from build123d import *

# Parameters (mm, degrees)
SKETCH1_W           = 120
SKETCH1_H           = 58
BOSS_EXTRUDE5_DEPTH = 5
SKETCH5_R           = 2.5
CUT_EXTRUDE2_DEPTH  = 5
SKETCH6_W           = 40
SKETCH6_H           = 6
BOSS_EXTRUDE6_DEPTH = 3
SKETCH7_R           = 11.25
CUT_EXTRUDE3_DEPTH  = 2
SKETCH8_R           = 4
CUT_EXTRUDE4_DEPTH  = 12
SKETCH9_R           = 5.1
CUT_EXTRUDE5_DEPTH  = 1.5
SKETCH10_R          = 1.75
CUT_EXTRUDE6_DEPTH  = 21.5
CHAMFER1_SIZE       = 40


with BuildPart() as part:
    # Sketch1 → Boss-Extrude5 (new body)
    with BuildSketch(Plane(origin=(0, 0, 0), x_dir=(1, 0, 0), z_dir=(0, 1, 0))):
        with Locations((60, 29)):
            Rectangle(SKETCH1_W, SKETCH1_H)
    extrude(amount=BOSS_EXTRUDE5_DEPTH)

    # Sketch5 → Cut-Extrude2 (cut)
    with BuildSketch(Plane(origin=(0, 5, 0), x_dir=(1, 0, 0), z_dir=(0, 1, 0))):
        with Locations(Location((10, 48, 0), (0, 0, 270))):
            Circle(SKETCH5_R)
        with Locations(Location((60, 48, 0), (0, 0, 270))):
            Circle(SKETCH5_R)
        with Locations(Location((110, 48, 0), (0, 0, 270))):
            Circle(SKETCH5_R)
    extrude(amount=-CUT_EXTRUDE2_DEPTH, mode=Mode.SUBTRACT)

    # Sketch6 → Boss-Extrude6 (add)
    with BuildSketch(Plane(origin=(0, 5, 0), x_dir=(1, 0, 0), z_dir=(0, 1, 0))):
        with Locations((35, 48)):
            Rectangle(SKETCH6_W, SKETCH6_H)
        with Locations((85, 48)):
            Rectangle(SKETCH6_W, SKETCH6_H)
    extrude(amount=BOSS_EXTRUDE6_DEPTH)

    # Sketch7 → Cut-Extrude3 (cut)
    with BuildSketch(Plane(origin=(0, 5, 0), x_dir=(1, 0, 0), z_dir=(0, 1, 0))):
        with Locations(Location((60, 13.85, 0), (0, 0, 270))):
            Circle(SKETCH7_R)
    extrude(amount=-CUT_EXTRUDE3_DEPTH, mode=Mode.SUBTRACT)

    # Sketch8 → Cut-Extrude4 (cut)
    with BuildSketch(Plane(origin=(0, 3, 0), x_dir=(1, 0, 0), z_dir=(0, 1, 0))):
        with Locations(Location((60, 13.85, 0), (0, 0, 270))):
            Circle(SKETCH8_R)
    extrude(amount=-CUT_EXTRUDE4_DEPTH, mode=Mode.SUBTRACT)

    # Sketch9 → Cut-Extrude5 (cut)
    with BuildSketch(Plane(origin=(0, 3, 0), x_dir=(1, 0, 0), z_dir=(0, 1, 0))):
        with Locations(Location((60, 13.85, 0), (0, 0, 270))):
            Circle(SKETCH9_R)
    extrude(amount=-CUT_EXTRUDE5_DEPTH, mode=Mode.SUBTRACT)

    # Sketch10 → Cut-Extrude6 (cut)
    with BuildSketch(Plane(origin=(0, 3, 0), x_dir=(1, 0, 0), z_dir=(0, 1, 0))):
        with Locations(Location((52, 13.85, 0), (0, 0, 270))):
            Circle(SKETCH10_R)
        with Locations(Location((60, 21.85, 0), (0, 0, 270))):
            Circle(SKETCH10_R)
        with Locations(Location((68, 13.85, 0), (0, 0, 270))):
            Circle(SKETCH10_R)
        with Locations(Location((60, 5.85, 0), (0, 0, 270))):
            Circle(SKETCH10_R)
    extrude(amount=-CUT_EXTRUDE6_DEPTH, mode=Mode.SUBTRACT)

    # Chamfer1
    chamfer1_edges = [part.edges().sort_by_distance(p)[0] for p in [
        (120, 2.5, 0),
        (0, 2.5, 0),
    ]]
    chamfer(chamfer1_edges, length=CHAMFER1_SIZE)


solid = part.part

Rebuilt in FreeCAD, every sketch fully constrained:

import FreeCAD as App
import Part
import Sketcher
Q = App.Units.Quantity


def edges_at(feature, points):
    """Names of the edges that pass closest to the given points."""
    edges = feature.Shape.Edges
    near = lambda p: min(range(len(edges)), key=lambda i: edges[i].distToShape(Part.Vertex(*p))[0])
    return sorted({f"Edge{near(p) + 1}" for p in points})

doc = App.newDocument("Part")
body = doc.addObject("PartDesign::Body", "Body")

# Sketch on XZ plane
sketch1 = body.newObject("Sketcher::SketchObject", "Sketch")
sketch1.AttachmentSupport = (doc.getObject("XZ_Plane"), [""])
sketch1.MapMode = "FlatFace"
sketch1.addGeometry(Part.LineSegment(App.Vector(0, -58, 0), App.Vector(0, 0, 0)), False)
sketch1.addGeometry(Part.LineSegment(App.Vector(0, 0, 0), App.Vector(120, 0, 0)), False)
sketch1.addGeometry(Part.LineSegment(App.Vector(120, 0, 0), App.Vector(120, -58, 0)), False)
sketch1.addGeometry(Part.LineSegment(App.Vector(120, -58, 0), App.Vector(0, -58, 0)), False)
sketch1.addConstraint(Sketcher.Constraint("Coincident", 0, 2, 1, 1))
sketch1.addConstraint(Sketcher.Constraint("Coincident", 1, 2, 2, 1))
sketch1.addConstraint(Sketcher.Constraint("Coincident", 2, 2, 3, 1))
sketch1.addConstraint(Sketcher.Constraint("Coincident", 3, 2, 0, 1))
sketch1.addConstraint(Sketcher.Constraint("Vertical", 0))
sketch1.addConstraint(Sketcher.Constraint("Horizontal", 1))
sketch1.addConstraint(Sketcher.Constraint("Vertical", 2))
sketch1.addConstraint(Sketcher.Constraint("Horizontal", 3))
sketch1.addConstraint(Sketcher.Constraint("Coincident", 0, 2, -1, 1))
sketch1.addConstraint(Sketcher.Constraint("DistanceX", 1, 1, 1, 2, Q("120 mm")))
sketch1.addConstraint(Sketcher.Constraint("DistanceY", 0, 1, 0, 2, Q("58 mm")))
pad1 = body.newObject("PartDesign::Pad", "Pad")
pad1.Profile = sketch1
pad1.Length = 5
pad1.Reversed = True

# Sketch on XZ plane
sketch2 = body.newObject("Sketcher::SketchObject", "Sketch001")
sketch2.AttachmentSupport = (doc.getObject("XZ_Plane"), [""])
sketch2.MapMode = "FlatFace"
sketch2.AttachmentOffset = App.Placement(App.Vector(0, 0, -5), App.Rotation())
sketch2.addGeometry(Part.Circle(App.Vector(10, -48, 0), App.Vector(0, 0, 1), 2.5), False)
sketch2.addGeometry(Part.Circle(App.Vector(60, -48, 0), App.Vector(0, 0, 1), 2.5), False)
sketch2.addGeometry(Part.Circle(App.Vector(110, -48, 0), App.Vector(0, 0, 1), 2.5), False)
sketch2.addConstraint(Sketcher.Constraint("Equal", 0, 1))
sketch2.addConstraint(Sketcher.Constraint("Equal", 1, 2))
sketch2.addConstraint(Sketcher.Constraint("Horizontal", 0, 3, 1, 3))
sketch2.addConstraint(Sketcher.Constraint("Horizontal", 1, 3, 2, 3))
sketch2.addConstraint(Sketcher.Constraint("Diameter", 0, Q("5 mm")))
sketch2.addConstraint(Sketcher.Constraint("DistanceX", -1, 1, 0, 3, Q("10 mm")))
sketch2.addConstraint(Sketcher.Constraint("DistanceY", 0, 3, -1, 1, Q("48 mm")))
sketch2.addConstraint(Sketcher.Constraint("DistanceX", -1, 1, 1, 3, Q("60 mm")))
sketch2.addConstraint(Sketcher.Constraint("DistanceX", -1, 1, 2, 3, Q("110 mm")))
pocket1 = body.newObject("PartDesign::Pocket", "Pocket")
pocket1.Profile = sketch2
pocket1.Length = 5
pocket1.Reversed = True

# Sketch on XZ plane
sketch3 = body.newObject("Sketcher::SketchObject", "Sketch002")
sketch3.AttachmentSupport = (doc.getObject("XZ_Plane"), [""])
sketch3.MapMode = "FlatFace"
sketch3.AttachmentOffset = App.Placement(App.Vector(0, 0, -5), App.Rotation())
sketch3.addGeometry(Part.LineSegment(App.Vector(15, -51, 0), App.Vector(15, -45, 0)), False)
sketch3.addGeometry(Part.LineSegment(App.Vector(15, -45, 0), App.Vector(55, -45, 0)), False)
sketch3.addGeometry(Part.LineSegment(App.Vector(55, -45, 0), App.Vector(55, -51, 0)), False)
sketch3.addGeometry(Part.LineSegment(App.Vector(55, -51, 0), App.Vector(15, -51, 0)), False)
sketch3.addGeometry(Part.LineSegment(App.Vector(65, -51, 0), App.Vector(65, -45, 0)), False)
sketch3.addGeometry(Part.LineSegment(App.Vector(65, -45, 0), App.Vector(105, -45, 0)), False)
sketch3.addGeometry(Part.LineSegment(App.Vector(105, -45, 0), App.Vector(105, -51, 0)), False)
sketch3.addGeometry(Part.LineSegment(App.Vector(105, -51, 0), App.Vector(65, -51, 0)), False)
sketch3.addConstraint(Sketcher.Constraint("Coincident", 0, 2, 1, 1))
sketch3.addConstraint(Sketcher.Constraint("Coincident", 1, 2, 2, 1))
sketch3.addConstraint(Sketcher.Constraint("Coincident", 2, 2, 3, 1))
sketch3.addConstraint(Sketcher.Constraint("Coincident", 3, 2, 0, 1))
sketch3.addConstraint(Sketcher.Constraint("Coincident", 4, 2, 5, 1))
sketch3.addConstraint(Sketcher.Constraint("Coincident", 5, 2, 6, 1))
sketch3.addConstraint(Sketcher.Constraint("Coincident", 6, 2, 7, 1))
sketch3.addConstraint(Sketcher.Constraint("Coincident", 7, 2, 4, 1))
sketch3.addConstraint(Sketcher.Constraint("Vertical", 0))
sketch3.addConstraint(Sketcher.Constraint("Horizontal", 1))
sketch3.addConstraint(Sketcher.Constraint("Vertical", 2))
sketch3.addConstraint(Sketcher.Constraint("Horizontal", 3))
sketch3.addConstraint(Sketcher.Constraint("Vertical", 4))
sketch3.addConstraint(Sketcher.Constraint("Horizontal", 5))
sketch3.addConstraint(Sketcher.Constraint("Vertical", 6))
sketch3.addConstraint(Sketcher.Constraint("Horizontal", 7))
sketch3.addConstraint(Sketcher.Constraint("Horizontal", 1, 2, 4, 2))
sketch3.addConstraint(Sketcher.Constraint("Horizontal", 3, 2, 6, 2))
sketch3.addConstraint(Sketcher.Constraint("Equal", 3, 5))
sketch3.addConstraint(Sketcher.Constraint("DistanceX", 1, 1, 1, 2, Q("40 mm")))
sketch3.addConstraint(Sketcher.Constraint("DistanceY", 0, 1, 0, 2, Q("6 mm")))
sketch3.addConstraint(Sketcher.Constraint("DistanceX", -1, 1, 0, 2, Q("15 mm")))
sketch3.addConstraint(Sketcher.Constraint("DistanceY", 0, 2, -1, 1, Q("45 mm")))
sketch3.addConstraint(Sketcher.Constraint("DistanceX", -1, 1, 4, 2, Q("65 mm")))
pad2 = body.newObject("PartDesign::Pad", "Pad001")
pad2.Profile = sketch3
pad2.Length = 3
pad2.Reversed = True

# Sketch on XZ plane
sketch4 = body.newObject("Sketcher::SketchObject", "Sketch003")
sketch4.AttachmentSupport = (doc.getObject("XZ_Plane"), [""])
sketch4.MapMode = "FlatFace"
sketch4.AttachmentOffset = App.Placement(App.Vector(0, 0, -5), App.Rotation())
sketch4.addGeometry(Part.Circle(App.Vector(60, -14, 0), App.Vector(0, 0, 1), 11), False)
sketch4.addConstraint(Sketcher.Constraint("Diameter", 0, Q("22.5 mm")))
sketch4.addConstraint(Sketcher.Constraint("DistanceX", -1, 1, 0, 3, Q("60 mm")))
sketch4.addConstraint(Sketcher.Constraint("DistanceY", 0, 3, -1, 1, Q("13.85 mm")))
pocket2 = body.newObject("PartDesign::Pocket", "Pocket001")
pocket2.Profile = sketch4
pocket2.Length = 2
pocket2.Reversed = True

# Sketch on XZ plane
sketch5 = body.newObject("Sketcher::SketchObject", "Sketch004")
sketch5.AttachmentSupport = (doc.getObject("XZ_Plane"), [""])
sketch5.MapMode = "FlatFace"
sketch5.AttachmentOffset = App.Placement(App.Vector(0, 0, -3), App.Rotation())
sketch5.addGeometry(Part.Circle(App.Vector(60, -13.8, 0), App.Vector(0, 0, 1), 4), False)
sketch5.addConstraint(Sketcher.Constraint("Diameter", 0, Q("8 mm")))
sketch5.addConstraint(Sketcher.Constraint("DistanceX", -1, 1, 0, 3, Q("60 mm")))
sketch5.addConstraint(Sketcher.Constraint("DistanceY", 0, 3, -1, 1, Q("13.85 mm")))
pocket3 = body.newObject("PartDesign::Pocket", "Pocket002")
pocket3.Profile = sketch5
pocket3.Length = 12
pocket3.Reversed = True

# Sketch on XZ plane
sketch6 = body.newObject("Sketcher::SketchObject", "Sketch005")
sketch6.AttachmentSupport = (doc.getObject("XZ_Plane"), [""])
sketch6.MapMode = "FlatFace"
sketch6.AttachmentOffset = App.Placement(App.Vector(0, 0, -3), App.Rotation())
sketch6.addGeometry(Part.Circle(App.Vector(60, -14, 0), App.Vector(0, 0, 1), 5), False)
sketch6.addConstraint(Sketcher.Constraint("Diameter", 0, Q("10.2 mm")))
sketch6.addConstraint(Sketcher.Constraint("DistanceX", -1, 1, 0, 3, Q("60 mm")))
sketch6.addConstraint(Sketcher.Constraint("DistanceY", 0, 3, -1, 1, Q("13.85 mm")))
pocket4 = body.newObject("PartDesign::Pocket", "Pocket003")
pocket4.Profile = sketch6
pocket4.Length = 1.5
pocket4.Reversed = True

# Sketch on XZ plane
sketch7 = body.newObject("Sketcher::SketchObject", "Sketch006")
sketch7.AttachmentSupport = (doc.getObject("XZ_Plane"), [""])
sketch7.MapMode = "FlatFace"
sketch7.AttachmentOffset = App.Placement(App.Vector(0, 0, -3), App.Rotation())
sketch7.addGeometry(Part.Circle(App.Vector(52, -13.8, 0), App.Vector(0, 0, 1), 1.8), False)
sketch7.addGeometry(Part.Circle(App.Vector(60, -21.9, 0), App.Vector(0, 0, 1), 1.8), False)
sketch7.addGeometry(Part.Circle(App.Vector(68, -13.8, 0), App.Vector(0, 0, 1), 1.8), False)
sketch7.addGeometry(Part.Circle(App.Vector(60, -5.8, 0), App.Vector(0, 0, 1), 1.8), False)
sketch7.addConstraint(Sketcher.Constraint("Equal", 0, 1))
sketch7.addConstraint(Sketcher.Constraint("Equal", 1, 2))
sketch7.addConstraint(Sketcher.Constraint("Equal", 2, 3))
sketch7.addConstraint(Sketcher.Constraint("Horizontal", 0, 3, 2, 3))
sketch7.addConstraint(Sketcher.Constraint("Vertical", 1, 3, 3, 3))
sketch7.addConstraint(Sketcher.Constraint("Diameter", 0, Q("3.5 mm")))
sketch7.addConstraint(Sketcher.Constraint("DistanceX", -1, 1, 0, 3, Q("52 mm")))
sketch7.addConstraint(Sketcher.Constraint("DistanceX", -1, 1, 1, 3, Q("60 mm")))
sketch7.addConstraint(Sketcher.Constraint("DistanceX", -1, 1, 2, 3, Q("68 mm")))
sketch7.addConstraint(Sketcher.Constraint("DistanceY", 1, 3, 0, 3, Q("8 mm")))
sketch7.addConstraint(Sketcher.Constraint("DistanceY", 0, 3, 3, 3, Q("8 mm")))
sketch7.addConstraint(Sketcher.Constraint("DistanceY", 0, 3, -1, 1, Q("13.85 mm")))
pocket5 = body.newObject("PartDesign::Pocket", "Pocket004")
pocket5.Profile = sketch7
pocket5.Length = 21.5
pocket5.Reversed = True
doc.recompute()

chamfer = body.newObject("PartDesign::Chamfer", "Chamfer")
chamfer.Base = (pocket5, edges_at(pocket5, [(120, 2.5, 0), (0, 2.5, 0)]))
chamfer.Size = 40

doc.recompute()
